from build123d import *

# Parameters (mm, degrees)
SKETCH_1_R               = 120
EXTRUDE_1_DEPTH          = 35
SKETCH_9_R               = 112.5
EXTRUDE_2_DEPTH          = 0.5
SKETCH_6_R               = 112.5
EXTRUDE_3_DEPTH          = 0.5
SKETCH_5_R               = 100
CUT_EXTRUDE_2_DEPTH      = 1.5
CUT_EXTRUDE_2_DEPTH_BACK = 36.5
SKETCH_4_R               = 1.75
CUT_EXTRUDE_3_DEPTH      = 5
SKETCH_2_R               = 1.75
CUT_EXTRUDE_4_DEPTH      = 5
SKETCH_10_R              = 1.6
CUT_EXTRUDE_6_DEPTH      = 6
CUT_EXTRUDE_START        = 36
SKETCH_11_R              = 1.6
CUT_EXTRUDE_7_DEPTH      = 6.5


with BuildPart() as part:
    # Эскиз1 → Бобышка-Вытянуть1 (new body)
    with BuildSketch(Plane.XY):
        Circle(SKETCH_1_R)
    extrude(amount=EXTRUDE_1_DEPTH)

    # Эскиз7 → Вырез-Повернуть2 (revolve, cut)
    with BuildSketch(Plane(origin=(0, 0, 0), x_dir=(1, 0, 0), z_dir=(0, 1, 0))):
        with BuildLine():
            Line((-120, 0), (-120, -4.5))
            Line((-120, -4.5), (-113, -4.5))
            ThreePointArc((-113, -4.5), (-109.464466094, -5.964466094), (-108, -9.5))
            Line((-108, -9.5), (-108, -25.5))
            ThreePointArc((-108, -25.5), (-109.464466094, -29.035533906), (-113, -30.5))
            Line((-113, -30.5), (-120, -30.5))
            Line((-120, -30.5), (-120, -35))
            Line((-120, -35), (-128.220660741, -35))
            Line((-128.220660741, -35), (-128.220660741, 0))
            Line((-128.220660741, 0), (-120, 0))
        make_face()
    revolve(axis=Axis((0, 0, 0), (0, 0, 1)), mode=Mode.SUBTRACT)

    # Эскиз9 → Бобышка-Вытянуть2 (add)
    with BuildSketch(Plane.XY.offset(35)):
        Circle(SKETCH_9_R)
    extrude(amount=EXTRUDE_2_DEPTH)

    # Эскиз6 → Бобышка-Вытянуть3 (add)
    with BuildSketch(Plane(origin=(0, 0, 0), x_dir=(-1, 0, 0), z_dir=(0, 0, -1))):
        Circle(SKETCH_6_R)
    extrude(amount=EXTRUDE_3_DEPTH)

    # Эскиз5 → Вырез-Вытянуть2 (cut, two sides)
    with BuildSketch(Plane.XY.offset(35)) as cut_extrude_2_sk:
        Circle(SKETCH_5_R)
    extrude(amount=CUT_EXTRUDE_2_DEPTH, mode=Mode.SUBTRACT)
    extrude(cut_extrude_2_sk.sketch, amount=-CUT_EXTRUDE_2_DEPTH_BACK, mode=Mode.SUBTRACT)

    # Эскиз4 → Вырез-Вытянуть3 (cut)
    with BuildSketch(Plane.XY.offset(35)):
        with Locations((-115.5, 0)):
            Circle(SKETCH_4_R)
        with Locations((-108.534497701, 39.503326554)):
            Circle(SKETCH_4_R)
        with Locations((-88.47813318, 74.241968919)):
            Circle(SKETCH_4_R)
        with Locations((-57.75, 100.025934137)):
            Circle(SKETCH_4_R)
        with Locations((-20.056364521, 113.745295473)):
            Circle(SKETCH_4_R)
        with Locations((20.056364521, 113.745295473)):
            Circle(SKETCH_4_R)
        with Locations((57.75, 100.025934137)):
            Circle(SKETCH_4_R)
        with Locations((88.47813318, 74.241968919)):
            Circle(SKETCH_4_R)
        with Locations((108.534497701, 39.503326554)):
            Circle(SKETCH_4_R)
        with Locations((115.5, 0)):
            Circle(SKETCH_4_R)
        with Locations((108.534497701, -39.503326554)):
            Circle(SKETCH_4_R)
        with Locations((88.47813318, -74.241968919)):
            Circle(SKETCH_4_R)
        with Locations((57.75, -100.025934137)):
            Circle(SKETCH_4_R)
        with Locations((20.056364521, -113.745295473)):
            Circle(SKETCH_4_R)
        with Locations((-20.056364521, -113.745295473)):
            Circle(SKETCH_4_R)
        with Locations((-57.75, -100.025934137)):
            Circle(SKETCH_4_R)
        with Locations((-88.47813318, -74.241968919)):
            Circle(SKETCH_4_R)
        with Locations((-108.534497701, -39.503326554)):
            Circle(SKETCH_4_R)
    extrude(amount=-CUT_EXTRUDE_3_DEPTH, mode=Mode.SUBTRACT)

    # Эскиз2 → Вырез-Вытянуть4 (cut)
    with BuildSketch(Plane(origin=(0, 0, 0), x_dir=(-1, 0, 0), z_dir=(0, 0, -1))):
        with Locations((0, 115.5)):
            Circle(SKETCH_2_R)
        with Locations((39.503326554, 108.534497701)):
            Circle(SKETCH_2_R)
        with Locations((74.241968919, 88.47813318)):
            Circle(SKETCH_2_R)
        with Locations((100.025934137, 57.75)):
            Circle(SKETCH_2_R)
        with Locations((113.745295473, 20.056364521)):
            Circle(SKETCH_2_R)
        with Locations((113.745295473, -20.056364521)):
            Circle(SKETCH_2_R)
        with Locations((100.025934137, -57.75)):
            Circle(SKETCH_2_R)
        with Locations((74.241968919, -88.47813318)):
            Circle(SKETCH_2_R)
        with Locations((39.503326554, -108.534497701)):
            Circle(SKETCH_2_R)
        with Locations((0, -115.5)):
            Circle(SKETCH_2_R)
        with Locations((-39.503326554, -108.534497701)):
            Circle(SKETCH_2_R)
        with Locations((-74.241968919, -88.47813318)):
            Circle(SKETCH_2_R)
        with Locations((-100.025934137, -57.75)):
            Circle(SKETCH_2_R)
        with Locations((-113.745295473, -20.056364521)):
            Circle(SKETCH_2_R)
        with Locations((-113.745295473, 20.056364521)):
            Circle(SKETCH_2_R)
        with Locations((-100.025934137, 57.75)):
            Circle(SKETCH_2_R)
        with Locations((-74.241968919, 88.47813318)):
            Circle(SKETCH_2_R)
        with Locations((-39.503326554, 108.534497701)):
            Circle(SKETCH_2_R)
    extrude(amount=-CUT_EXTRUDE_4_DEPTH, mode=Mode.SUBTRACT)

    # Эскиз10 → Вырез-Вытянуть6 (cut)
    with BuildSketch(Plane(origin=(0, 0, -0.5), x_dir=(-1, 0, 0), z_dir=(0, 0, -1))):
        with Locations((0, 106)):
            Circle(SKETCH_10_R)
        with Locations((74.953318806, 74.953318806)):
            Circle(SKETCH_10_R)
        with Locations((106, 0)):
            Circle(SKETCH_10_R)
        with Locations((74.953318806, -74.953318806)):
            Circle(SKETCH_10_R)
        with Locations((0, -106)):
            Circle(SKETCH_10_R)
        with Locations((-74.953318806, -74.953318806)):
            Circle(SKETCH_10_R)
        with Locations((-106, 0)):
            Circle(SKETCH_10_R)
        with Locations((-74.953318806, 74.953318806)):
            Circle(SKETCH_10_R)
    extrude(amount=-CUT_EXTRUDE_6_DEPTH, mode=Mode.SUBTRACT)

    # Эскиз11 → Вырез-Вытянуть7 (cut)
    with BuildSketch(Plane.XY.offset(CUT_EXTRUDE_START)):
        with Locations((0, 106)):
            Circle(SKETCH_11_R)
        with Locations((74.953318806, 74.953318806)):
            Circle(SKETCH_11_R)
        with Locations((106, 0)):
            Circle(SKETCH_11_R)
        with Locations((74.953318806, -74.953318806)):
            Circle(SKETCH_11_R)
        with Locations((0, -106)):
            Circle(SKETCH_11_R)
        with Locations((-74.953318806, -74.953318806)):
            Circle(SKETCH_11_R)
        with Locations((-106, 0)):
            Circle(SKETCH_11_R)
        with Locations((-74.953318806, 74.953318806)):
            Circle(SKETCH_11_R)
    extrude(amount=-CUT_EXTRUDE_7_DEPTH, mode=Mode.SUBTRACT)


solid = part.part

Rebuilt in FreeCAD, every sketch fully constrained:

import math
import FreeCAD as App
import Part
import Sketcher
from FreeCAD import Vector

doc = App.newDocument("Part")
body = doc.addObject("PartDesign::Body", "Body")

# Sketch on XY plane
sketch1 = doc.addObject("Sketcher::SketchObject", "Sketch")
body.addObject(sketch1)
sketch1.AttachmentSupport = (doc.XY_Plane, [""])
sketch1.MapMode = "FlatFace"
sketch1.addGeometry(Part.Circle(Vector(0, 0, 0), Vector(0, 0, 1), 120), False)
sketch1.addConstraint([
    Sketcher.Constraint("Coincident", 0, 3, -1, 1),
    Sketcher.Constraint("Diameter", 0, 240.0),
])
pad1 = doc.addObject("PartDesign::Pad", "Pad")
body.addObject(pad1)
pad1.Profile = sketch1
pad1.Length = 35

# Sketch on XZ plane
sketch2 = doc.addObject("Sketcher::SketchObject", "Sketch001")
body.addObject(sketch2)
sketch2.AttachmentSupport = (doc.XZ_Plane, [""])
sketch2.MapMode = "FlatFace"
sketch2.addGeometry([
    Part.LineSegment(Vector(-120, 4.5, 0), Vector(-120, 0, 0)),  # 0
    Part.LineSegment(Vector(-120, 0, 0), Vector(-128.2, 0, 0)),  # 1
    Part.LineSegment(Vector(-128.2, 0, 0), Vector(-128.2, 35, 0)),  # 2
    Part.LineSegment(Vector(-128.2, 35, 0), Vector(-120, 35, 0)),  # 3
    Part.LineSegment(Vector(-120, 35, 0), Vector(-120, 30.5, 0)),  # 4
    Part.LineSegment(Vector(-120, 30.5, 0), Vector(-113, 30.5, 0)),  # 5
    Part.ArcOfCircle(Part.Circle(Vector(-113, 25.5, 0), Vector(0, 0, 1), 5), math.radians(0), math.radians(90)),  # 6
    Part.LineSegment(Vector(-108, 25.5, 0), Vector(-108, 9.5, 0)),  # 7
    Part.ArcOfCircle(Part.Circle(Vector(-113, 9.5, 0), Vector(0, 0, 1), 5), math.radians(-90), math.radians(0)),  # 8
    Part.LineSegment(Vector(-113, 4.5, 0), Vector(-120, 4.5, 0)),  # 9
], False)
sketch2.addConstraint([
    Sketcher.Constraint("Coincident", 0, 2, 1, 1),
    Sketcher.Constraint("Coincident", 1, 2, 2, 1),
    Sketcher.Constraint("Coincident", 2, 2, 3, 1),
    Sketcher.Constraint("Coincident", 3, 2, 4, 1),
    Sketcher.Constraint("Coincident", 4, 2, 5, 1),
    Sketcher.Constraint("Tangent", 5, 2, 6, 2),
    Sketcher.Constraint("Tangent", 6, 1, 7, 1),
    Sketcher.Constraint("Tangent", 7, 2, 8, 2),
    Sketcher.Constraint("Tangent", 8, 1, 9, 1),
    Sketcher.Constraint("Coincident", 9, 2, 0, 1),
    Sketcher.Constraint("Vertical", 0),
    Sketcher.Constraint("Horizontal", 1),
    Sketcher.Constraint("Vertical", 2),
    Sketcher.Constraint("Horizontal", 3),
    Sketcher.Constraint("Vertical", 4),
    Sketcher.Constraint("Horizontal", 5),
    Sketcher.Constraint("Vertical", 7),
    Sketcher.Constraint("Horizontal", 9),
    Sketcher.Constraint("Equal", 6, 8),
    Sketcher.Constraint("PointOnObject", 0, 2, -1),
    Sketcher.Constraint("Vertical", 0, 2, 3, 2),
    Sketcher.Constraint("Equal", 0, 4),
    Sketcher.Constraint("Radius", 6, 5.0),
    Sketcher.Constraint("DistanceX", 5, 1, 5, 2, 7.0),
    Sketcher.Constraint("DistanceY", 2, 1, 2, 2, 35.0),
    Sketcher.Constraint("DistanceY", 7, 2, 7, 1, 16.0),
    Sketcher.Constraint("DistanceX", 6, 3, -1, 1, 113.0),
    Sketcher.Constraint("DistanceX", 1, 2, 1, 1, 8.220661),
])
groove = doc.addObject("PartDesign::Groove", "Groove")
body.addObject(groove)
groove.Profile = sketch2
groove.ReferenceAxis = (sketch2, ["V_Axis"])
groove.Angle = 360

# Sketch on XY plane
sketch3 = doc.addObject("Sketcher::SketchObject", "Sketch002")
body.addObject(sketch3)
sketch3.AttachmentSupport = (doc.XY_Plane, [""])
sketch3.MapMode = "FlatFace"
sketch3.AttachmentOffset = App.Placement(Vector(0, 0, 35), App.Rotation())
sketch3.addGeometry(Part.Circle(Vector(0, 0, 0), Vector(0, 0, 1), 112), False)
sketch3.addConstraint([
    Sketcher.Constraint("Coincident", 0, 3, -1, 1),
    Sketcher.Constraint("Diameter", 0, 225.0),
])
pad2 = doc.addObject("PartDesign::Pad", "Pad001")
body.addObject(pad2)
pad2.Profile = sketch3
pad2.Length = 0.5

# Sketch on XY plane
sketch4 = doc.addObject("Sketcher::SketchObject", "Sketch003")
body.addObject(sketch4)
sketch4.AttachmentSupport = (doc.XY_Plane, [""])
sketch4.MapMode = "FlatFace"
sketch4.addGeometry(Part.Circle(Vector(0, 0, 0), Vector(0, 0, 1), 112), False)
sketch4.addConstraint([
    Sketcher.Constraint("Coincident", 0, 3, -1, 1),
    Sketcher.Constraint("Diameter", 0, 225.0),
])
pad3 = doc.addObject("PartDesign::Pad", "Pad002")
body.addObject(pad3)
pad3.Profile = sketch4
pad3.Length = 0.5
pad3.Reversed = True

# Sketch on XY plane
sketch5 = doc.addObject("Sketcher::SketchObject", "Sketch004")
body.addObject(sketch5)
sketch5.AttachmentSupport = (doc.XY_Plane, [""])
sketch5.MapMode = "FlatFace"
sketch5.AttachmentOffset = App.Placement(Vector(0, 0, 35), App.Rotation())
sketch5.addGeometry(Part.Circle(Vector(0, 0, 0), Vector(0, 0, 1), 100), False)
sketch5.addConstraint([
    Sketcher.Constraint("Coincident", 0, 3, -1, 1),
    Sketcher.Constraint("Diameter", 0, 200.0),
])
pocket1 = doc.addObject("PartDesign::Pocket", "Pocket")
body.addObject(pocket1)
pocket1.Profile = sketch5
pocket1.Type = "ThroughAll"
pocket1.Midplane = True

# Sketch on XY plane
sketch6 = doc.addObject("Sketcher::SketchObject", "Sketch005")
body.addObject(sketch6)
sketch6.AttachmentSupport = (doc.XY_Plane, [""])
sketch6.MapMode = "FlatFace"
sketch6.AttachmentOffset = App.Placement(Vector(0, 0, 35), App.Rotation())
sketch6.addGeometry([
    Part.Circle(Vector(-115.5, 0, 0), Vector(0, 0, 1), 1.8),  # 0
    Part.Circle(Vector(-108.5, 39.5, 0), Vector(0, 0, 1), 1.8),  # 1
    Part.Circle(Vector(-88.5, 74.2, 0), Vector(0, 0, 1), 1.8),  # 2
    Part.Circle(Vector(-57.8, 100, 0), Vector(0, 0, 1), 1.8),  # 3
    Part.Circle(Vector(-20.1, 113.7, 0), Vector(0, 0, 1), 1.8),  # 4
    Part.Circle(Vector(20.1, 113.7, 0), Vector(0, 0, 1), 1.8),  # 5
    Part.Circle(Vector(57.8, 100, 0), Vector(0, 0, 1), 1.8),  # 6
    Part.Circle(Vector(88.5, 74.2, 0), Vector(0, 0, 1), 1.8),  # 7
    Part.Circle(Vector(108.5, 39.5, 0), Vector(0, 0, 1), 1.8),  # 8
    Part.Circle(Vector(115.5, 0, 0), Vector(0, 0, 1), 1.8),  # 9
    Part.Circle(Vector(108.5, -39.5, 0), Vector(0, 0, 1), 1.8),  # 10
    Part.Circle(Vector(88.5, -74.2, 0), Vector(0, 0, 1), 1.8),  # 11
    Part.Circle(Vector(57.8, -100, 0), Vector(0, 0, 1), 1.8),  # 12
    Part.Circle(Vector(20.1, -113.7, 0), Vector(0, 0, 1), 1.8),  # 13
    Part.Circle(Vector(-20.1, -113.7, 0), Vector(0, 0, 1), 1.8),  # 14
    Part.Circle(Vector(-57.8, -100, 0), Vector(0, 0, 1), 1.8),  # 15
    Part.Circle(Vector(-88.5, -74.2, 0), Vector(0, 0, 1), 1.8),  # 16
    Part.Circle(Vector(-108.5, -39.5, 0), Vector(0, 0, 1), 1.8),  # 17
], False)
sketch6.addConstraint([
    Sketcher.Constraint("Equal", 0, 1),
    Sketcher.Constraint("Equal", 1, 2),
    Sketcher.Constraint("Equal", 2, 3),
    Sketcher.Constraint("Equal", 3, 4),
    Sketcher.Constraint("Equal", 4, 5),
    Sketcher.Constraint("Equal", 5, 6),
    Sketcher.Constraint("Equal", 6, 7),
    Sketcher.Constraint("Equal", 7, 8),
    Sketcher.Constraint("Equal", 8, 9),
    Sketcher.Constraint("Equal", 9, 10),
    Sketcher.Constraint("Equal", 10, 11),
    Sketcher.Constraint("Equal", 11, 12),
    Sketcher.Constraint("Equal", 12, 13),
    Sketcher.Constraint("Equal", 13, 14),
    Sketcher.Constraint("Equal", 14, 15),
    Sketcher.Constraint("Equal", 15, 16),
    Sketcher.Constraint("Equal", 16, 17),
    Sketcher.Constraint("Symmetric", 0, 3, 9, 3, -1, 1),
    Sketcher.Constraint("Symmetric", 1, 3, 10, 3, -1, 1),
    Sketcher.Constraint("Symmetric", 2, 3, 11, 3, -1, 1),
    Sketcher.Constraint("Symmetric", 3, 3, 12, 3, -1, 1),
    Sketcher.Constraint("Symmetric", 4, 3, 13, 3, -1, 1),
    Sketcher.Constraint("Symmetric", 5, 3, 14, 3, -1, 1),
    Sketcher.Constraint("Symmetric", 6, 3, 15, 3, -1, 1),
    Sketcher.Constraint("Symmetric", 7, 3, 16, 3, -1, 1),
    Sketcher.Constraint("Symmetric", 8, 3, 17, 3, -1, 1),
    Sketcher.Constraint("Symmetric", 4, 3, 5, 3, -2),
    Sketcher.Constraint("Symmetric", 3, 3, 6, 3, -2),
    Sketcher.Constraint("Symmetric", 2, 3, 7, 3, -2),
    Sketcher.Constraint("Symmetric", 1, 3, 8, 3, -2),
    Sketcher.Constraint("PointOnObject", 0, 3, -1),
    Sketcher.Constraint("Diameter", 0, 3.5),
    Sketcher.Constraint("DistanceX", 0, 3, -1, 1, 115.5),
    Sketcher.Constraint("DistanceX", 3, 3, 6, 3, 115.5),
    Sketcher.Constraint("DistanceY", -1, 1, 2, 3, 74.241969),
    Sketcher.Constraint("DistanceY", 3, 3, 4, 3, 13.719361),
    Sketcher.Constraint("DistanceX", 2, 3, 4, 3, 68.421769),
    Sketcher.Constraint("DistanceY", 1, 3, 4, 3, 74.241969),
    Sketcher.Constraint("DistanceX", 4, 3, 5, 3, 40.112729),
    Sketcher.Constraint("DistanceY", 10, 3, 6, 3, 139.529261),
    Sketcher.Constraint("DistanceX", 1, 3, -1, 1, 108.534498),
])
pocket2 = doc.addObject("PartDesign::Pocket", "Pocket001")
body.addObject(pocket2)
pocket2.Profile = sketch6
pocket2.Length = 5

# Sketch on XY plane
sketch7 = doc.addObject("Sketcher::SketchObject", "Sketch006")
body.addObject(sketch7)
sketch7.AttachmentSupport = (doc.XY_Plane, [""])
sketch7.MapMode = "FlatFace"
sketch7.addGeometry([
    Part.Circle(Vector(0, 115.5, 0), Vector(0, 0, 1), 1.8),  # 0
    Part.Circle(Vector(-39.5, 108.5, 0), Vector(0, 0, 1), 1.8),  # 1
    Part.Circle(Vector(-74.2, 88.5, 0), Vector(0, 0, 1), 1.8),  # 2
    Part.Circle(Vector(-100, 57.8, 0), Vector(0, 0, 1), 1.8),  # 3
    Part.Circle(Vector(-113.7, 20.1, 0), Vector(0, 0, 1), 1.8),  # 4
    Part.Circle(Vector(-113.7, -20.1, 0), Vector(0, 0, 1), 1.8),  # 5
    Part.Circle(Vector(-100, -57.8, 0), Vector(0, 0, 1), 1.8),  # 6
    Part.Circle(Vector(-74.2, -88.5, 0), Vector(0, 0, 1), 1.8),  # 7
    Part.Circle(Vector(-39.5, -108.5, 0), Vector(0, 0, 1), 1.8),  # 8
    Part.Circle(Vector(0, -115.5, 0), Vector(0, 0, 1), 1.8),  # 9
    Part.Circle(Vector(39.5, -108.5, 0), Vector(0, 0, 1), 1.8),  # 10
    Part.Circle(Vector(74.2, -88.5, 0), Vector(0, 0, 1), 1.8),  # 11
    Part.Circle(Vector(100, -57.8, 0), Vector(0, 0, 1), 1.8),  # 12
    Part.Circle(Vector(113.7, -20.1, 0), Vector(0, 0, 1), 1.8),  # 13
    Part.Circle(Vector(113.7, 20.1, 0), Vector(0, 0, 1), 1.8),  # 14
    Part.Circle(Vector(100, 57.8, 0), Vector(0, 0, 1), 1.8),  # 15
    Part.Circle(Vector(74.2, 88.5, 0), Vector(0, 0, 1), 1.8),  # 16
    Part.Circle(Vector(39.5, 108.5, 0), Vector(0, 0, 1), 1.8),  # 17
], False)
sketch7.addConstraint([
    Sketcher.Constraint("Equal", 0, 1),
    Sketcher.Constraint("Equal", 1, 2),
    Sketcher.Constraint("Equal", 2, 3),
    Sketcher.Constraint("Equal", 3, 4),
    Sketcher.Constraint("Equal", 4, 5),
    Sketcher.Constraint("Equal", 5, 6),
    Sketcher.Constraint("Equal", 6, 7),
    Sketcher.Constraint("Equal", 7, 8),
    Sketcher.Constraint("Equal", 8, 9),
    Sketcher.Constraint("Equal", 9, 10),
    Sketcher.Constraint("Equal", 10, 11),
    Sketcher.Constraint("Equal", 11, 12),
    Sketcher.Constraint("Equal", 12, 13),
    Sketcher.Constraint("Equal", 13, 14),
    Sketcher.Constraint("Equal", 14, 15),
    Sketcher.Constraint("Equal", 15, 16),
    Sketcher.Constraint("Equal", 16, 17),
    Sketcher.Constraint("Symmetric", 0, 3, 9, 3, -1, 1),
    Sketcher.Constraint("Symmetric", 1, 3, 10, 3, -1, 1),
    Sketcher.Constraint("Symmetric", 2, 3, 11, 3, -1, 1),
    Sketcher.Constraint("Symmetric", 3, 3, 12, 3, -1, 1),
    Sketcher.Constraint("Symmetric", 4, 3, 13, 3, -1, 1),
    Sketcher.Constraint("Symmetric", 5, 3, 14, 3, -1, 1),
    Sketcher.Constraint("Symmetric", 6, 3, 15, 3, -1, 1),
    Sketcher.Constraint("Symmetric", 7, 3, 16, 3, -1, 1),
    Sketcher.Constraint("Symmetric", 8, 3, 17, 3, -1, 1),
    Sketcher.Constraint("Symmetric", 8, 3, 10, 3, -2),
    Sketcher.Constraint("Symmetric", 7, 3, 11, 3, -2),
    Sketcher.Constraint("Symmetric", 6, 3, 12, 3, -2),
    Sketcher.Constraint("Symmetric", 5, 3, 13, 3, -2),
    Sketcher.Constraint("PointOnObject", 0, 3, -2),
    Sketcher.Constraint("Diameter", 0, 3.5),
    Sketcher.Constraint("DistanceY", -1, 1, 0, 3, 115.5),
    Sketcher.Constraint("DistanceY", 6, 3, 3, 3, 115.5),
    Sketcher.Constraint("DistanceX", 2, 3, -1, 1, 74.241969),
    Sketcher.Constraint("DistanceX", 4, 3, 3, 3, 13.719361),
    Sketcher.Constraint("DistanceY", 4, 3, 2, 3, 68.421769),
    Sketcher.Constraint("DistanceX", 4, 3, 1, 3, 74.241969),
    Sketcher.Constraint("DistanceY", 5, 3, 4, 3, 40.112729),
    Sketcher.Constraint("DistanceX", 6, 3, 10, 3, 139.529261),
    Sketcher.Constraint("DistanceY", -1, 1, 1, 3, 108.534498),
])
pocket3 = doc.addObject("PartDesign::Pocket", "Pocket002")
body.addObject(pocket3)
pocket3.Profile = sketch7
pocket3.Length = 5
pocket3.Reversed = True

# Sketch on XY plane
sketch8 = doc.addObject("Sketcher::SketchObject", "Sketch007")
body.addObject(sketch8)
sketch8.AttachmentSupport = (doc.XY_Plane, [""])
sketch8.MapMode = "FlatFace"
sketch8.AttachmentOffset = App.Placement(Vector(0, 0, -0.5), App.Rotation())
sketch8.addGeometry([
    Part.Circle(Vector(0, 106, 0), Vector(0, 0, 1), 1.6),  # 0
    Part.Circle(Vector(-75, 75, 0), Vector(0, 0, 1), 1.6),  # 1
    Part.Circle(Vector(-106, 0, 0), Vector(0, 0, 1), 1.6),  # 2
    Part.Circle(Vector(-75, -75, 0), Vector(0, 0, 1), 1.6),  # 3
    Part.Circle(Vector(0, -106, 0), Vector(0, 0, 1), 1.6),  # 4
    Part.Circle(Vector(75, -75, 0), Vector(0, 0, 1), 1.6),  # 5
    Part.Circle(Vector(106, 0, 0), Vector(0, 0, 1), 1.6),  # 6
    Part.Circle(Vector(75, 75, 0), Vector(0, 0, 1), 1.6),  # 7
], False)
sketch8.addConstraint([
    Sketcher.Constraint("Equal", 0, 1),
    Sketcher.Constraint("Equal", 1, 2),
    Sketcher.Constraint("Equal", 2, 3),
    Sketcher.Constraint("Equal", 3, 4),
    Sketcher.Constraint("Equal", 4, 5),
    Sketcher.Constraint("Equal", 5, 6),
    Sketcher.Constraint("Equal", 6, 7),
    Sketcher.Constraint("Symmetric", 0, 3, 4, 3, -1, 1),
    Sketcher.Constraint("Symmetric", 1, 3, 5, 3, -1, 1),
    Sketcher.Constraint("Symmetric", 2, 3, 6, 3, -1, 1),
    Sketcher.Constraint("Symmetric", 3, 3, 7, 3, -1, 1),
    Sketcher.Constraint("Symmetric", 3, 3, 5, 3, -2),
    Sketcher.Constraint("PointOnObject", 0, 3, -2),
    Sketcher.Constraint("PointOnObject", 2, 3, -1),
    Sketcher.Constraint("Diameter", 0, 3.2),
    Sketcher.Constraint("DistanceY", -1, 1, 0, 3, 106.0),
    Sketcher.Constraint("DistanceX", 2, 3, -1, 1, 106.0),
    Sketcher.Constraint("DistanceX", 1, 3, -1, 1, 74.953319),
    Sketcher.Constraint("DistanceY", -1, 1, 1, 3, 74.953319),
])
pocket4 = doc.addObject("PartDesign::Pocket", "Pocket003")
body.addObject(pocket4)
pocket4.Profile = sketch8
pocket4.Length = 6
pocket4.Reversed = True

# Sketch on XY plane
sketch9 = doc.addObject("Sketcher::SketchObject", "Sketch008")
body.addObject(sketch9)
sketch9.AttachmentSupport = (doc.XY_Plane, [""])
sketch9.MapMode = "FlatFace"
sketch9.AttachmentOffset = App.Placement(Vector(0, 0, 36), App.Rotation())
sketch9.addGeometry([
    Part.Circle(Vector(0, 106, 0), Vector(0, 0, 1), 1.6),  # 0
    Part.Circle(Vector(75, 75, 0), Vector(0, 0, 1), 1.6),  # 1
    Part.Circle(Vector(106, 0, 0), Vector(0, 0, 1), 1.6),  # 2
    Part.Circle(Vector(75, -75, 0), Vector(0, 0, 1), 1.6),  # 3
    Part.Circle(Vector(0, -106, 0), Vector(0, 0, 1), 1.6),  # 4
    Part.Circle(Vector(-75, -75, 0), Vector(0, 0, 1), 1.6),  # 5
    Part.Circle(Vector(-106, 0, 0), Vector(0, 0, 1), 1.6),  # 6
    Part.Circle(Vector(-75, 75, 0), Vector(0, 0, 1), 1.6),  # 7
], False)
sketch9.addConstraint([
    Sketcher.Constraint("Equal", 0, 1),
    Sketcher.Constraint("Equal", 1, 2),
    Sketcher.Constraint("Equal", 2, 3),
    Sketcher.Constraint("Equal", 3, 4),
    Sketcher.Constraint("Equal", 4, 5),
    Sketcher.Constraint("Equal", 5, 6),
    Sketcher.Constraint("Equal", 6, 7),
    Sketcher.Constraint("Symmetric", 0, 3, 4, 3, -1, 1),
    Sketcher.Constraint("Symmetric", 1, 3, 5, 3, -1, 1),
    Sketcher.Constraint("Symmetric", 2, 3, 6, 3, -1, 1),
    Sketcher.Constraint("Symmetric", 3, 3, 7, 3, -1, 1),
    Sketcher.Constraint("Symmetric", 3, 3, 5, 3, -2),
    Sketcher.Constraint("PointOnObject", 0, 3, -2),
    Sketcher.Constraint("PointOnObject", 2, 3, -1),
    Sketcher.Constraint("Diameter", 0, 3.2),
    Sketcher.Constraint("DistanceY", -1, 1, 0, 3, 106.0),
    Sketcher.Constraint("DistanceX", -1, 1, 2, 3, 106.0),
    Sketcher.Constraint("DistanceX", -1, 1, 1, 3, 74.953319),
    Sketcher.Constraint("DistanceY", -1, 1, 1, 3, 74.953319),
])
pocket5 = doc.addObject("PartDesign::Pocket", "Pocket004")
body.addObject(pocket5)
pocket5.Profile = sketch9
pocket5.Length = 6.5

doc.recompute()
